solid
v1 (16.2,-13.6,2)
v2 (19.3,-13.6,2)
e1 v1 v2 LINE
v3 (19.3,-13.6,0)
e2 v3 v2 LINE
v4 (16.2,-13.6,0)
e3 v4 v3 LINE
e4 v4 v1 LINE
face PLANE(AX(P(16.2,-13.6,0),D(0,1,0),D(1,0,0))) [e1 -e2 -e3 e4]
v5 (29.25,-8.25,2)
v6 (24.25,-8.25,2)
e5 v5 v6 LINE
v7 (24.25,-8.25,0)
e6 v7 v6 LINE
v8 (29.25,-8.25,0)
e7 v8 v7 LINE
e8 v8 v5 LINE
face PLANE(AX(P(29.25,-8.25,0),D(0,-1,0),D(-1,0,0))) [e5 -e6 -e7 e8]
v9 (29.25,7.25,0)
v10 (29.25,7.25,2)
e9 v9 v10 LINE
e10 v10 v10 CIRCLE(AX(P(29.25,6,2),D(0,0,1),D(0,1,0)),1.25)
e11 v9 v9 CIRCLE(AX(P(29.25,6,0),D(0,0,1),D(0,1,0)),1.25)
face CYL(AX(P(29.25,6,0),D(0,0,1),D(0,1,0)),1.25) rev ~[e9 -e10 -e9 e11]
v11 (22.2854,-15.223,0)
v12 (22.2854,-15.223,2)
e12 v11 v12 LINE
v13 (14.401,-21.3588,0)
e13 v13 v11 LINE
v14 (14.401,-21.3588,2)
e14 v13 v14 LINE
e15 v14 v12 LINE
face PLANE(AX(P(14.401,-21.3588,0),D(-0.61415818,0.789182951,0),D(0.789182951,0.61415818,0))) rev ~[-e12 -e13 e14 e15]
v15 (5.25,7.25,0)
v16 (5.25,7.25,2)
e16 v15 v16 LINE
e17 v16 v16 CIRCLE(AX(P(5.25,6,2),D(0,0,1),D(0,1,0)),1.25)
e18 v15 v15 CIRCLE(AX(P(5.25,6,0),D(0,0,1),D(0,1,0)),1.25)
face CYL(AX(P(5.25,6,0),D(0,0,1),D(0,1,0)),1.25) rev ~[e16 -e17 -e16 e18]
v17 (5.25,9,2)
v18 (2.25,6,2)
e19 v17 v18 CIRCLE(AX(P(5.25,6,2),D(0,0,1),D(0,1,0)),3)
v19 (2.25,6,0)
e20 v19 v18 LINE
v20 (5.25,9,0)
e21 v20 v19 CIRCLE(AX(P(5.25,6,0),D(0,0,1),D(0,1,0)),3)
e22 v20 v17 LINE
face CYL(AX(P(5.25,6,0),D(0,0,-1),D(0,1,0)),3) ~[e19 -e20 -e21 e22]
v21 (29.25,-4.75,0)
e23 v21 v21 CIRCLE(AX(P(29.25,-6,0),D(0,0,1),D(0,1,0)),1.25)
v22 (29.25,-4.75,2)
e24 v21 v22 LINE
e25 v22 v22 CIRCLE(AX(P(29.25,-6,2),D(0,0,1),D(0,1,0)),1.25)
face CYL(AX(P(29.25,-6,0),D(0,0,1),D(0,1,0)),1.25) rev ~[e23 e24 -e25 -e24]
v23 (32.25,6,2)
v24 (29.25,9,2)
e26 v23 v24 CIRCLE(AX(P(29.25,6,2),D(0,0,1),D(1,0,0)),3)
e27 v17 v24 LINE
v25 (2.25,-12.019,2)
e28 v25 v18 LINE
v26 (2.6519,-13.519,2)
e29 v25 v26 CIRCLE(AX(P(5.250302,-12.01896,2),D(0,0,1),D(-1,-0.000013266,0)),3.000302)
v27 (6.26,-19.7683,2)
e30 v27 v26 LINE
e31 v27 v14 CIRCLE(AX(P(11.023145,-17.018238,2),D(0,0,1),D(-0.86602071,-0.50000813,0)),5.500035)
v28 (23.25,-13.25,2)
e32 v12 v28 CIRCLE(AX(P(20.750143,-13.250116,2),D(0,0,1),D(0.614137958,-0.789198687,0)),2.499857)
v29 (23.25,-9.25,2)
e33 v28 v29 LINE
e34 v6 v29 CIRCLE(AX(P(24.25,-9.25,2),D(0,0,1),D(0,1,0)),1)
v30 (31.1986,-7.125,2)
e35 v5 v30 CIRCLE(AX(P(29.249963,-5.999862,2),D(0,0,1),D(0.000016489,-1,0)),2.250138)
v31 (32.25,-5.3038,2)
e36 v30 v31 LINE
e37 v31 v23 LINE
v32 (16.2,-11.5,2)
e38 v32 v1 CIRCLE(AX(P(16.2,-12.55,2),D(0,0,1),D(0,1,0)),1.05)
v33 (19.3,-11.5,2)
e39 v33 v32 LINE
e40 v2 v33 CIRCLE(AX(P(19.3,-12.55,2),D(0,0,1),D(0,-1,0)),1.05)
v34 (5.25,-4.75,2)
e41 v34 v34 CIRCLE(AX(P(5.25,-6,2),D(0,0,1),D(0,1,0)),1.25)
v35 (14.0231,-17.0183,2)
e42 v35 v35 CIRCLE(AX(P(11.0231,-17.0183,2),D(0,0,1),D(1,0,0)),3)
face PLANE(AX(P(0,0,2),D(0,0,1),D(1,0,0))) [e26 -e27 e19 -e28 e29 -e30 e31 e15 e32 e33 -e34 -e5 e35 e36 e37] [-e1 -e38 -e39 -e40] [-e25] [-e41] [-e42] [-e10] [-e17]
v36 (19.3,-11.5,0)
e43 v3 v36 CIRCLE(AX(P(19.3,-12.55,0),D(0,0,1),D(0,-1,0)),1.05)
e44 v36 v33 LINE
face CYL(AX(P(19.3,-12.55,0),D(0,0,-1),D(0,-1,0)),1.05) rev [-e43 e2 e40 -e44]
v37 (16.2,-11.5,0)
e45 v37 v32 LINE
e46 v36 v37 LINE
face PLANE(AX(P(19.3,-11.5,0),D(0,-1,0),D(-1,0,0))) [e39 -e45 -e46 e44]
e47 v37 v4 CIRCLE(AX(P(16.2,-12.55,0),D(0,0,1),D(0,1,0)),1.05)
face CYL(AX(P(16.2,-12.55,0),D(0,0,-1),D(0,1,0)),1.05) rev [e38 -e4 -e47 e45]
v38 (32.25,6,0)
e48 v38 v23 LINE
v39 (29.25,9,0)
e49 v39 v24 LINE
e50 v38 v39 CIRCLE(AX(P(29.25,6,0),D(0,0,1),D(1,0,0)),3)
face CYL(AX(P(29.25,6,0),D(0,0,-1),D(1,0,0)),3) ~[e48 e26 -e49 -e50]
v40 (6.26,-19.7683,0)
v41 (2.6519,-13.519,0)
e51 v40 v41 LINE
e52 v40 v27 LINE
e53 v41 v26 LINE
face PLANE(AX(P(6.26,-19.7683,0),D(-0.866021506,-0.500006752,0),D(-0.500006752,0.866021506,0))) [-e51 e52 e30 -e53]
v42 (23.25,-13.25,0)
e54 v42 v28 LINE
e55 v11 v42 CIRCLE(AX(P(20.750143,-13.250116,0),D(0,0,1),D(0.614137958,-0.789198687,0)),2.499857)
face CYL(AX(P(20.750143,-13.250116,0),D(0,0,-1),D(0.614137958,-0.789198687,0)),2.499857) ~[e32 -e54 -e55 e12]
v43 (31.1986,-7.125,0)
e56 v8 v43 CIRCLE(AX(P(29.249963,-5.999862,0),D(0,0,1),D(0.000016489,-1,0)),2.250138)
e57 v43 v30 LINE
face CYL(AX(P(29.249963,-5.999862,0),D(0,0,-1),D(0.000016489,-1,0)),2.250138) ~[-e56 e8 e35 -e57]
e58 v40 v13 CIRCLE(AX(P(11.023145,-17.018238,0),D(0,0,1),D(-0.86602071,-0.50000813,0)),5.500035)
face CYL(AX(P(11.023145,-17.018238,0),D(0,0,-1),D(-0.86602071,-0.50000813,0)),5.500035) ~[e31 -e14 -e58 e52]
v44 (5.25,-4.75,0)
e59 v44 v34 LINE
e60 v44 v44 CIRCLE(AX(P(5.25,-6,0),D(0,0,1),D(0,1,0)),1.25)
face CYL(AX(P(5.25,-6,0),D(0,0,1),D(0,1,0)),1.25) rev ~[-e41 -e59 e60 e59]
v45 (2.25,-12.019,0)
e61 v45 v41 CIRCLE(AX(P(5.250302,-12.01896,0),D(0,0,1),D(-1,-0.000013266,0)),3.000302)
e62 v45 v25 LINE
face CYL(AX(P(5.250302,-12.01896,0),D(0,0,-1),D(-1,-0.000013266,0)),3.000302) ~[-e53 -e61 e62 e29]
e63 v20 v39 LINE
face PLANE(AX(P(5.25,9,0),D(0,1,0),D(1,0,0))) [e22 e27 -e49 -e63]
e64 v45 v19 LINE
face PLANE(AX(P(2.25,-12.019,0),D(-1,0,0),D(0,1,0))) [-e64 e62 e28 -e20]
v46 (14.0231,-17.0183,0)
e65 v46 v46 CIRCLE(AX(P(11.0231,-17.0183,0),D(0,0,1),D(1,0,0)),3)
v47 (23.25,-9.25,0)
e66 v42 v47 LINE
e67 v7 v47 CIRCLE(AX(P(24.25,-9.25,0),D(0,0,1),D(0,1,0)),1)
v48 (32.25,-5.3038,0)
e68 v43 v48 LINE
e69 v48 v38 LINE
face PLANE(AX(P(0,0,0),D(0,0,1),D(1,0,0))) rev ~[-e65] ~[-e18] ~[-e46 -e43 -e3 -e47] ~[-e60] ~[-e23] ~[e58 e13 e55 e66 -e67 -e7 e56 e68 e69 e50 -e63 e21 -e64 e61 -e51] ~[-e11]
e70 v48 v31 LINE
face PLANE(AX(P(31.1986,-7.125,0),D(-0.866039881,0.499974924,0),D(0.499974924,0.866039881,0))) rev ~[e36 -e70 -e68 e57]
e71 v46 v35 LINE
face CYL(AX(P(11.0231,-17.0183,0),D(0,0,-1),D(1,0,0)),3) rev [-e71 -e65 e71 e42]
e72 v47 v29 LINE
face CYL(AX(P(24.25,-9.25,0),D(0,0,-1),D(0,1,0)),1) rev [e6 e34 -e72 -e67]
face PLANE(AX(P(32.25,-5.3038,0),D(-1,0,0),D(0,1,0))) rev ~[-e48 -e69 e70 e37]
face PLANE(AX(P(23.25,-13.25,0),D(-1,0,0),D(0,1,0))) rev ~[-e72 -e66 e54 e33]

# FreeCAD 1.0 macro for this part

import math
import FreeCAD as App
import Part
import Sketcher
from FreeCAD import Vector
Q = App.Units.Quantity

doc = App.newDocument("Part")
body = doc.addObject("PartDesign::Body", "Body")

# Sketch on XY plane
sketch1 = body.newObject("Sketcher::SketchObject", "Sketch")
sketch1.AttachmentSupport = (doc.getObject("XY_Plane"), [""])
sketch1.MapMode = "FlatFace"
sketch1.addGeometry(Part.LineSegment(Vector(24.2, -8.2, 0), Vector(29.2, -8.2, 0)), False)
sketch1.addGeometry(Part.ArcOfCircle(Part.Circle(Vector(29.2, -6, 0), Vector(0, 0, 1), 2.2), math.radians(-90), math.radians(-30)), False)
sketch1.addGeometry(Part.LineSegment(Vector(31.2, -7.1, 0), Vector(32.2, -5.3, 0)), False)
sketch1.addGeometry(Part.LineSegment(Vector(32.2, -5.3, 0), Vector(32.2, 6, 0)), False)
sketch1.addGeometry(Part.ArcOfCircle(Part.Circle(Vector(29.2, 6, 0), Vector(0, 0, 1), 3), math.radians(0), math.radians(90)), False)
sketch1.addGeometry(Part.LineSegment(Vector(29.2, 9, 0), Vector(5.2, 9, 0)), False)
sketch1.addGeometry(Part.ArcOfCircle(Part.Circle(Vector(5.2, 6, 0), Vector(0, 0, 1), 3), math.radians(90), math.radians(180)), False)
sketch1.addGeometry(Part.LineSegment(Vector(2.2, 6, 0), Vector(2.2, -12, 0)), False)
sketch1.addGeometry(Part.ArcOfCircle(Part.Circle(Vector(5.2, -12, 0), Vector(0, 0, 1), 3), math.radians(180), math.radians(210)), False)
sketch1.addGeometry(Part.LineSegment(Vector(2.7, -13.5, 0), Vector(6.3, -19.8, 0)), False)
sketch1.addGeometry(Part.ArcOfCircle(Part.Circle(Vector(11, -17, 0), Vector(0, 0, 1), 5.5), math.radians(-150), math.radians(-52)), False)
sketch1.addGeometry(Part.LineSegment(Vector(14.4, -21.4, 0), Vector(22.3, -15.2, 0)), False)
sketch1.addGeometry(Part.ArcOfCircle(Part.Circle(Vector(20.8, -13.2, 0), Vector(0, 0, 1), 2.5), math.radians(-52), math.radians(0)), False)
sketch1.addGeometry(Part.LineSegment(Vector(23.2, -13.2, 0), Vector(23.2, -9.2, 0)), False)
sketch1.addGeometry(Part.ArcOfCircle(Part.Circle(Vector(24.2, -9.2, 0), Vector(0, 0, 1), 1), math.radians(90), math.radians(180)), False)
sketch1.addGeometry(Part.Circle(Vector(11, -17, 0), Vector(0, 0, 1), 3), False)
sketch1.addGeometry(Part.LineSegment(Vector(19.3, -13.6, 0), Vector(16.2, -13.6, 0)), False)
sketch1.addGeometry(Part.ArcOfCircle(Part.Circle(Vector(16.2, -12.6, 0), Vector(0, 0, 1), 1.1), math.radians(90), math.radians(270)), False)
sketch1.addGeometry(Part.LineSegment(Vector(16.2, -11.5, 0), Vector(19.3, -11.5, 0)), False)
sketch1.addGeometry(Part.ArcOfCircle(Part.Circle(Vector(19.3, -12.6, 0), Vector(0, 0, 1), 1), math.radians(-90), math.radians(90)), False)
sketch1.addConstraint(Sketcher.Constraint("Tangent", 0, 2, 1, 1))
sketch1.addConstraint(Sketcher.Constraint("Tangent", 1, 2, 2, 1))
sketch1.addConstraint(Sketcher.Constraint("Coincident", 2, 2, 3, 1))
sketch1.addConstraint(Sketcher.Constraint("Tangent", 3, 2, 4, 1))
sketch1.addConstraint(Sketcher.Constraint("Tangent", 4, 2, 5, 1))
sketch1.addConstraint(Sketcher.Constraint("Tangent", 5, 2, 6, 1))
sketch1.addConstraint(Sketcher.Constraint("Tangent", 6, 2, 7, 1))
sketch1.addConstraint(Sketcher.Constraint("Tangent", 7, 2, 8, 1))
sketch1.addConstraint(Sketcher.Constraint("Tangent", 8, 2, 9, 1))
sketch1.addConstraint(Sketcher.Constraint("Tangent", 9, 2, 10, 1))
sketch1.addConstraint(Sketcher.Constraint("Tangent", 10, 2, 11, 1))
sketch1.addConstraint(Sketcher.Constraint("Tangent", 11, 2, 12, 1))
sketch1.addConstraint(Sketcher.Constraint("Tangent", 12, 2, 13, 1))
sketch1.addConstraint(Sketcher.Constraint("Tangent", 13, 2, 14, 2))
sketch1.addConstraint(Sketcher.Constraint("Tangent", 14, 1, 0, 1))
sketch1.addConstraint(Sketcher.Constraint("Tangent", 16, 2, 17, 2))
sketch1.addConstraint(Sketcher.Constraint("Tangent", 17, 1, 18, 1))
sketch1.addConstraint(Sketcher.Constraint("Tangent", 18, 2, 19, 2))
sketch1.addConstraint(Sketcher.Constraint("Tangent", 19, 1, 16, 1))
sketch1.addConstraint(Sketcher.Constraint("Horizontal", 0))
sketch1.addConstraint(Sketcher.Constraint("Vertical", 3))
sketch1.addConstraint(Sketcher.Constraint("Horizontal", 5))
sketch1.addConstraint(Sketcher.Constraint("Vertical", 7))
sketch1.addConstraint(Sketcher.Constraint("Vertical", 13))
sketch1.addConstraint(Sketcher.Constraint("Horizontal", 16))
sketch1.addConstraint(Sketcher.Constraint("Horizontal", 18))
sketch1.addConstraint(Sketcher.Constraint("Coincident", 15, 3, 10, 3))
sketch1.addConstraint(Sketcher.Constraint("Equal", 4, 6))
sketch1.addConstraint(Sketcher.Constraint("Equal", 6, 8))
sketch1.addConstraint(Sketcher.Constraint("Equal", 8, 15))
sketch1.addConstraint(Sketcher.Constraint("Symmetric", 1, 3, 4, 3, -1))
sketch1.addConstraint(Sketcher.Constraint("Diameter", 15, Q("6 mm")))
sketch1.addConstraint(Sketcher.Constraint("Radius", 14, Q("1 mm")))
sketch1.addConstraint(Sketcher.Constraint("Radius", 12, Q("2.5 mm")))
sketch1.addConstraint(Sketcher.Constraint("DistanceX", 0, 1, 0, 2, Q("5 mm")))
sketch1.addConstraint(Sketcher.Constraint("DistanceY", 13, 1, 13, 2, Q("4 mm")))
sketch1.addConstraint(Sketcher.Constraint("Radius", 10, Q("5.5 mm")))
sketch1.addConstraint(Sketcher.Constraint("DistanceX", 5, 2, 5, 1, Q("24 mm")))
sketch1.addConstraint(Sketcher.Constraint("Angle", 9, Q("-59.9996 deg")))
sketch1.addConstraint(Sketcher.Constraint("Radius", 1, Q("2.25 mm")))
sketch1.addConstraint(Sketcher.Constraint("Radius", 17, Q("1.05 mm")))
sketch1.addConstraint(Sketcher.Constraint("DistanceX", 16, 2, 16, 1, Q("3.1 mm")))
sketch1.addConstraint(Sketcher.Constraint("DistanceY", 1, 3, -1, 1, Q("6 mm")))
sketch1.addConstraint(Sketcher.Constraint("DistanceX", -1, 1, 17, 3, Q("16.2 mm")))
sketch1.addConstraint(Sketcher.Constraint("DistanceY", 16, 2, -1, 1, Q("13.6 mm")))
sketch1.addConstraint(Sketcher.Constraint("Angle", 11, Q("37.8908 deg")))
sketch1.addConstraint(Sketcher.Constraint("DistanceY", 7, 2, 7, 1, Q("18.019 mm")))
sketch1.addConstraint(Sketcher.Constraint("DistanceX", -1, 1, 1, 3, Q("29.25 mm")))
sketch1.addConstraint(Sketcher.Constraint("Distance", 2, Q("2.103 mm")))
pad1 = body.newObject("PartDesign::Pad", "Pad")
pad1.Profile = sketch1
pad1.Length = 2

# Sketch on XY plane
sketch2 = body.newObject("Sketcher::SketchObject", "Sketch001")
sketch2.AttachmentSupport = (doc.getObject("XY_Plane"), [""])
sketch2.MapMode = "FlatFace"
sketch2.addGeometry(Part.Circle(Vector(5.2, -6, 0), Vector(0, 0, 1), 1.2), False)
sketch2.addGeometry(Part.Circle(Vector(5.2, 6, 0), Vector(0, 0, 1), 1.2), False)
sketch2.addGeometry(Part.Circle(Vector(29.2, 6, 0), Vector(0, 0, 1), 1.2), False)
sketch2.addGeometry(Part.Circle(Vector(29.2, -6, 0), Vector(0, 0, 1), 1.2), False)
sketch2.addConstraint(Sketcher.Constraint("Equal", 0, 1))
sketch2.addConstraint(Sketcher.Constraint("Equal", 1, 2))
sketch2.addConstraint(Sketcher.Constraint("Equal", 2, 3))
sketch2.addConstraint(Sketcher.Constraint("Symmetric", 0, 3, 1, 3, -1))
sketch2.addConstraint(Sketcher.Constraint("Symmetric", 2, 3, 3, 3, -1))
sketch2.addConstraint(Sketcher.Constraint("Horizontal", 1, 3, 2, 3))
sketch2.addConstraint(Sketcher.Constraint("Diameter", 0, Q("2.5 mm")))
sketch2.addConstraint(Sketcher.Constraint("DistanceY", 0, 3, -1, 1, Q("6 mm")))
sketch2.addConstraint(Sketcher.Constraint("DistanceX", 1, 3, 2, 3, Q("24 mm")))
sketch2.addConstraint(Sketcher.Constraint("DistanceX", -1, 1, 0, 3, Q("5.25 mm")))
doc.recompute()
hole = body.newObject("PartDesign::Hole", "Hole")
hole.Profile = sketch2
hole.ThreadType = "None"
hole.Diameter = 2.5
hole.DepthType = "ThroughAll"
hole.Reversed = True

doc.recompute()
